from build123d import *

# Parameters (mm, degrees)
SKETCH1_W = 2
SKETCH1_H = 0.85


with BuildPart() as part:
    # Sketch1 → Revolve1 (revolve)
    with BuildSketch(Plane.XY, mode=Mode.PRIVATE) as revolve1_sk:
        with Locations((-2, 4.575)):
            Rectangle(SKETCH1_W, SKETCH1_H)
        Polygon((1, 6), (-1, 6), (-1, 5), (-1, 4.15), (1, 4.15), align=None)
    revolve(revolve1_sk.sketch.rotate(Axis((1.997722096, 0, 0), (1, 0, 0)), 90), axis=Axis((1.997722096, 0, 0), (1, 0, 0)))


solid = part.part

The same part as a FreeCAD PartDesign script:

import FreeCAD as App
import Part
import Sketcher
Q = App.Units.Quantity


def add_polygon(sketch, points):
    """Adds a closed chain of lines whose ends are joined by coincident constraints."""
    first, n = sketch.GeometryCount, len(points)
    for a, b in zip(points, points[1:] + points[:1]):
        sketch.addGeometry(Part.LineSegment(App.Vector(*a, 0), App.Vector(*b, 0)), False)
    for i in range(n):
        sketch.addConstraint(Sketcher.Constraint("Coincident", first + i, 2, first + (i + 1) % n, 1))

doc = App.newDocument("Part")
params = doc.addObject("Spreadsheet::Sheet", "Params")
for row, (alias, value) in enumerate([
    ("sketch1_width", "4 mm"),
    ("sketch1_height", "1 mm"),
    ("sketch1_height2", "0.85 mm"),
    ("revolution_angle", "360 deg"),
], start=1):
    params.set(f"A{row}", alias)
    params.set(f"B{row}", "=" + value)
    params.setAlias(f"B{row}", alias)

body = doc.addObject("PartDesign::Body", "Body")

# Sketch on XY plane
sketch1 = body.newObject("Sketcher::SketchObject", "Sketch")
sketch1.AttachmentSupport = (doc.getObject("XY_Plane"), [""])
sketch1.MapMode = "FlatFace"
add_polygon(sketch1, [(-3, 5), (-3, 4.2), (1, 4.2), (1, 6), (-1, 6), (-1, 5)])  # lines 0-5
sketch1.addConstraint(Sketcher.Constraint("Vertical", 0))
sketch1.addConstraint(Sketcher.Constraint("Horizontal", 1))
sketch1.addConstraint(Sketcher.Constraint("Vertical", 2))
sketch1.addConstraint(Sketcher.Constraint("Horizontal", 3))
sketch1.addConstraint(Sketcher.Constraint("Vertical", 4))
sketch1.addConstraint(Sketcher.Constraint("Horizontal", 5))
sketch1.addConstraint(Sketcher.Constraint("Equal", 3, 5))
sketch1.addConstraint(Sketcher.Constraint("DistanceX", 1, 1, 1, 2, Q("4 mm")))
sketch1.addConstraint(Sketcher.Constraint("DistanceY", 4, 2, 4, 1, Q("1 mm")))
sketch1.addConstraint(Sketcher.Constraint("DistanceX", 0, 2, -1, 1, Q("3 mm")))
sketch1.addConstraint(Sketcher.Constraint("DistanceY", -1, 1, 2, 2, Q("6 mm")))
sketch1.addConstraint(Sketcher.Constraint("DistanceY", 0, 2, 0, 1, Q("0.85 mm")))
sketch1.setExpression("Constraints[13]", "Params.sketch1_width")
sketch1.setExpression("Constraints[14]", "Params.sketch1_height")
sketch1.setExpression("Constraints[17]", "Params.sketch1_height2")
revolution = body.newObject("PartDesign::Revolution", "Revolution")
revolution.Profile = sketch1
revolution.ReferenceAxis = (sketch1, ["H_Axis"])
revolution.setExpression("Angle", "Params.revolution_angle")

doc.recompute()
